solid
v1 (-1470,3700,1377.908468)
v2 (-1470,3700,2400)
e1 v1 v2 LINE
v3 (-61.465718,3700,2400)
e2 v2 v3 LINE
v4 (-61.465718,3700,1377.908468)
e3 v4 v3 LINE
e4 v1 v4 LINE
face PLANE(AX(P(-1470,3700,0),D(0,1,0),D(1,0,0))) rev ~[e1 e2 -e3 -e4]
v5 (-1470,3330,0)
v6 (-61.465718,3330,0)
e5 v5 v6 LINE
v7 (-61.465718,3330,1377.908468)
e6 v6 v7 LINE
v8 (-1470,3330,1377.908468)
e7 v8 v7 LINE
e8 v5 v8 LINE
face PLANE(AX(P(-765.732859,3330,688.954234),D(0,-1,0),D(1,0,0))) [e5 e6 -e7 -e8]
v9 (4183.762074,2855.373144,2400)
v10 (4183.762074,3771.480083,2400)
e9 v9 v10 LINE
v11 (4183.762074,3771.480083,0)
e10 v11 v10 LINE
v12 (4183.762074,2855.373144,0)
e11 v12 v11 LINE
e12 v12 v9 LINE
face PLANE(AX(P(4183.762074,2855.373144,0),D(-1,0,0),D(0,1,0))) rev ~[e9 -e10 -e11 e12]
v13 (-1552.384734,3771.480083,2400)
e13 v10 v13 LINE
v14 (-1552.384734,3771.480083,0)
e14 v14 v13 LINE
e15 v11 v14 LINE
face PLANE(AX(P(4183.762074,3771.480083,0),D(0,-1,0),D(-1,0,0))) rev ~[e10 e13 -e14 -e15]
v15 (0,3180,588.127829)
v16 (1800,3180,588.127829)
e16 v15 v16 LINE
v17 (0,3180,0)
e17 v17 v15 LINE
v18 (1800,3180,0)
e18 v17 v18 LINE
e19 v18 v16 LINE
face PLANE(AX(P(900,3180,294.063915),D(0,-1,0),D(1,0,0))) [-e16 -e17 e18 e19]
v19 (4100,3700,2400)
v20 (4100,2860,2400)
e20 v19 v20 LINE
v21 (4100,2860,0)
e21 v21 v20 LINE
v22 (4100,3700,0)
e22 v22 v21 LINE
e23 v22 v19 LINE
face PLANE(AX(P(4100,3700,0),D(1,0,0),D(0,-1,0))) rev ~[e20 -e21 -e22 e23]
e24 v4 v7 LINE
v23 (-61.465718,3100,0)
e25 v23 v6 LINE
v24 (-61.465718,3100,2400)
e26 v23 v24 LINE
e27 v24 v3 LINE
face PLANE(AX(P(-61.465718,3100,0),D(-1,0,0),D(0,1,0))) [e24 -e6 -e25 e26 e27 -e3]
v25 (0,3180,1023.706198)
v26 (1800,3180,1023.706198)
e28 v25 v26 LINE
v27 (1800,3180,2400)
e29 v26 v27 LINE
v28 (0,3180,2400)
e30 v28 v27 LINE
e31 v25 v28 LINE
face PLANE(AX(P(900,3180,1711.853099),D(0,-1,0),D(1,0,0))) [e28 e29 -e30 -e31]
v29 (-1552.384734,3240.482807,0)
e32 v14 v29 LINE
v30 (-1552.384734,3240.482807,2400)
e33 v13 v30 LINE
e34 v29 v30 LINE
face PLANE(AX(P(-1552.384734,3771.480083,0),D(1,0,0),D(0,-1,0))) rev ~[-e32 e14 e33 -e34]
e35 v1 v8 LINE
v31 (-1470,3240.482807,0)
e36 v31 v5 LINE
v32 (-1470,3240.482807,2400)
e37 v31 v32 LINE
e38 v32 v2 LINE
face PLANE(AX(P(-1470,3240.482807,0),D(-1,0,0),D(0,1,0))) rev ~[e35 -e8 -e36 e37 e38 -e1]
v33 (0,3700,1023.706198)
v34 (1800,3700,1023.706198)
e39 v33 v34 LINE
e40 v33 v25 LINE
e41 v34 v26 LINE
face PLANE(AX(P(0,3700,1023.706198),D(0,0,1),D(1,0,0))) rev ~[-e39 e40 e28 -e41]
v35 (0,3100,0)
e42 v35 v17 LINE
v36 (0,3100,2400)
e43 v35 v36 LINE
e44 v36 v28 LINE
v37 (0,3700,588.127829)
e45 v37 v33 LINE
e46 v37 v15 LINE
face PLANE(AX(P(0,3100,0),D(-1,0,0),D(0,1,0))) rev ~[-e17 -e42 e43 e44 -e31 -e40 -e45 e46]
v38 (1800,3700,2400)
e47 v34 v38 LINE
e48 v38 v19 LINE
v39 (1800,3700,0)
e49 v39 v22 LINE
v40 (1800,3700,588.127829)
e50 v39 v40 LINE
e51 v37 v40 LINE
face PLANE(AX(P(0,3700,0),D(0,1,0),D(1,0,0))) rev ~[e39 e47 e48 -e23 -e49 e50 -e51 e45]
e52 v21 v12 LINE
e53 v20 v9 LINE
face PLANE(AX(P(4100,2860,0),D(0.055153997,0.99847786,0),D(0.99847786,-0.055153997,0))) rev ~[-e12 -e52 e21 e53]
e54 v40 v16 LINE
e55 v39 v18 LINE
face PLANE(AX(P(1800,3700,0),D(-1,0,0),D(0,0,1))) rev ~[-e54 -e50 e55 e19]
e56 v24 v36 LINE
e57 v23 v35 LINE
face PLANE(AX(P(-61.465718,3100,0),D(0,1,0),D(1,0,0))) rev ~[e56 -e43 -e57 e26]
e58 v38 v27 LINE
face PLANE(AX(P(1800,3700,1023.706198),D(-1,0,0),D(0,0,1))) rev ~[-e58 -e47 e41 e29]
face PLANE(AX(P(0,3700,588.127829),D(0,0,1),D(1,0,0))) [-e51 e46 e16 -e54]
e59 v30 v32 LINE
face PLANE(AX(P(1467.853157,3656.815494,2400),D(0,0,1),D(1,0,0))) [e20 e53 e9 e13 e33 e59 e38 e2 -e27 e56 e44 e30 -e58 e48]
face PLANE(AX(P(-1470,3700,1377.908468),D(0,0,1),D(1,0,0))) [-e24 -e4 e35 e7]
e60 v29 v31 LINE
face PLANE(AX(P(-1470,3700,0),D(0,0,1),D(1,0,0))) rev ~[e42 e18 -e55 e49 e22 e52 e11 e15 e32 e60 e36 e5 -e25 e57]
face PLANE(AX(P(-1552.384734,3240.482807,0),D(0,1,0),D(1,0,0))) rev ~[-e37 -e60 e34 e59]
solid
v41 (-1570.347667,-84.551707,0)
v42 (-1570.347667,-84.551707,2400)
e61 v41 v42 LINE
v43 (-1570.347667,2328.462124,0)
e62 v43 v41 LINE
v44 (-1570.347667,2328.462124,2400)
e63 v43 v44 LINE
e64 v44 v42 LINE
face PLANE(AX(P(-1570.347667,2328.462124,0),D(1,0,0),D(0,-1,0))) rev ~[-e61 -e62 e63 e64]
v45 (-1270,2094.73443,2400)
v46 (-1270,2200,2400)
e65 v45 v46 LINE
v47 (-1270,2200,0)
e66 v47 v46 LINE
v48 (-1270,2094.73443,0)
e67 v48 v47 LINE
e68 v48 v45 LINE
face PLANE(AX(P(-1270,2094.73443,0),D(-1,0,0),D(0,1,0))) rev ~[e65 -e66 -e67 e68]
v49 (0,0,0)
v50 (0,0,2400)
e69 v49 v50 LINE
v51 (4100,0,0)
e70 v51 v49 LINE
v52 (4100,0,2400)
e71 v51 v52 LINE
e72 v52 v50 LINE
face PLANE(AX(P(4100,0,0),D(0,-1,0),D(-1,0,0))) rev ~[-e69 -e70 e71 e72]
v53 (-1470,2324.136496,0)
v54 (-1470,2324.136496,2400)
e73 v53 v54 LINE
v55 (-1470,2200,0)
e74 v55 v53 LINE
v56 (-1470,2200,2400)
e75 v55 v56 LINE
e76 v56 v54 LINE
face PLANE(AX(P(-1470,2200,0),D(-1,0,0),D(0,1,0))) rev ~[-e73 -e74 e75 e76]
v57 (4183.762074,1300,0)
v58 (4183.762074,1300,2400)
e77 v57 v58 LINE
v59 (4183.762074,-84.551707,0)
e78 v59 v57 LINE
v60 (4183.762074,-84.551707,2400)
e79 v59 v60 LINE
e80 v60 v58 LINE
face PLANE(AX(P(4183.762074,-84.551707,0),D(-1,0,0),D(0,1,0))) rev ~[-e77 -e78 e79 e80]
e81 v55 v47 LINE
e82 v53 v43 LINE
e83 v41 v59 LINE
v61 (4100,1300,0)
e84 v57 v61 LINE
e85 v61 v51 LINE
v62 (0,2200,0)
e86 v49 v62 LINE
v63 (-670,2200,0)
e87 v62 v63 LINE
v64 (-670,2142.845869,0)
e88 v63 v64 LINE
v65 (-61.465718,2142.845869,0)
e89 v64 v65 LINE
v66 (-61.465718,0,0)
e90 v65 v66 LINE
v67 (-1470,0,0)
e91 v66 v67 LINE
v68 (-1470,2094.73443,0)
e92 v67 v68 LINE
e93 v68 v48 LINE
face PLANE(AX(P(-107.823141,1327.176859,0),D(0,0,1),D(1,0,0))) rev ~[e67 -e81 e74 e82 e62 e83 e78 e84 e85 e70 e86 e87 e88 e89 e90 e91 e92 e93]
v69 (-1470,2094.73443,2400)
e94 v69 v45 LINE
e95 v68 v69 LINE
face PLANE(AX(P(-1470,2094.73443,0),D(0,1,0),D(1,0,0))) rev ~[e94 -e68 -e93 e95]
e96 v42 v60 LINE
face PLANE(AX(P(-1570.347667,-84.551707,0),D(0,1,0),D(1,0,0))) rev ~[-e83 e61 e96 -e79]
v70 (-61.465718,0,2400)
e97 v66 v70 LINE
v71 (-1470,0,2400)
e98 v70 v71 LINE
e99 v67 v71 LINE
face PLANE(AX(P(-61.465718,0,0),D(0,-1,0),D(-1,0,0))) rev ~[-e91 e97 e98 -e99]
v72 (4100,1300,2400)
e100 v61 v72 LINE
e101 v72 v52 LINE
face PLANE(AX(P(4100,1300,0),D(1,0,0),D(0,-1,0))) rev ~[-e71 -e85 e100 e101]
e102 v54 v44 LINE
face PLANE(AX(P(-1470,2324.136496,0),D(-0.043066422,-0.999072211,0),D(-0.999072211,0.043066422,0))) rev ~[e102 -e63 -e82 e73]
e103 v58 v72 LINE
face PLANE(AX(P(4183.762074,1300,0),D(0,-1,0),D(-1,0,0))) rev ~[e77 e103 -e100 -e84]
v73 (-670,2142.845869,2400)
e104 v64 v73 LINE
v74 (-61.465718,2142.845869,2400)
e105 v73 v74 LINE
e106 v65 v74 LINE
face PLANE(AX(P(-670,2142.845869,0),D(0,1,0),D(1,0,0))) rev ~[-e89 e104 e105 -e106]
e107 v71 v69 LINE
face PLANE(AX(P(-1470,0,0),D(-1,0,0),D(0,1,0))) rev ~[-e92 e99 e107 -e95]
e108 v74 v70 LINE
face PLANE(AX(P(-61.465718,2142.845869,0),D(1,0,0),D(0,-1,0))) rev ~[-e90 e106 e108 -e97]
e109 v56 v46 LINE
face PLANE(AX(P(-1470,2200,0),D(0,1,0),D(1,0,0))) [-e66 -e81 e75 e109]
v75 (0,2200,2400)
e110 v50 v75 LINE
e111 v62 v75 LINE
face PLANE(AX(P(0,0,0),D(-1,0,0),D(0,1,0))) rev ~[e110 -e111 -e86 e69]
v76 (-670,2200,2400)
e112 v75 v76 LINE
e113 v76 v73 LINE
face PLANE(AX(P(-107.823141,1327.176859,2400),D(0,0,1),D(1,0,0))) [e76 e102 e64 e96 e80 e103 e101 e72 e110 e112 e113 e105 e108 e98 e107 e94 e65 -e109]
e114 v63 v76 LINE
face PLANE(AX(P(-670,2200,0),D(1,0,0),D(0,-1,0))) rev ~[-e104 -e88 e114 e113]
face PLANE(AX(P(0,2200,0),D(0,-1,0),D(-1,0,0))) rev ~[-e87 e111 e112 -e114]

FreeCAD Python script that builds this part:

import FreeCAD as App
import Part
import Sketcher
from FreeCAD import Vector
Q = App.Units.Quantity


def add_polygon(sketch, points):
    """Adds a closed chain of lines whose ends are joined by coincident constraints."""
    first, n = sketch.GeometryCount, len(points)
    for a, b in zip(points, points[1:] + points[:1]):
        sketch.addGeometry(Part.LineSegment(App.Vector(*a, 0), App.Vector(*b, 0)), False)
    for i in range(n):
        sketch.addConstraint(Sketcher.Constraint("Coincident", first + i, 2, first + (i + 1) % n, 1))

doc = App.newDocument("Part")
body = doc.addObject("PartDesign::Body", "Body")

# Sketch on XY plane
sketch1 = doc.addObject("Sketcher::SketchObject", "Sketch")
body.addObject(sketch1)
sketch1.AttachmentSupport = (doc.XY_Plane, [""])
sketch1.MapMode = "FlatFace"
add_polygon(sketch1, [(0, 0), (0, 2200), (-670, 2200), (-670, 2142.845869), (-61.465718, 2142.845869), (-61.465718, 0), (-1470, 0), (-1470, 2094.73443), (-1270, 2094.73443), (-1270, 2200), (-1470, 2200), (-1470, 2324.136496), (-1570.347667, 2328.462124), (-1570.347667, -84.551707), (4183.762074, -84.551707), (4183.762074, 1300), (4100, 1300), (4100, 0)])  # lines 0-17
sketch1.addConstraint([
    Sketcher.Constraint("Vertical", 0),
    Sketcher.Constraint("Horizontal", 1),
    Sketcher.Constraint("Vertical", 2),
    Sketcher.Constraint("Horizontal", 3),
    Sketcher.Constraint("Vertical", 4),
    Sketcher.Constraint("Horizontal", 5),
    Sketcher.Constraint("Vertical", 6),
    Sketcher.Constraint("Horizontal", 7),
    Sketcher.Constraint("Vertical", 8),
    Sketcher.Constraint("Horizontal", 9),
    Sketcher.Constraint("Vertical", 10),
    Sketcher.Constraint("Vertical", 12),
    Sketcher.Constraint("Horizontal", 13),
    Sketcher.Constraint("Vertical", 14),
    Sketcher.Constraint("Horizontal", 15),
    Sketcher.Constraint("Vertical", 16),
    Sketcher.Constraint("Horizontal", 17),
    Sketcher.Constraint("Coincident", 17, 2, -1, 1),
    Sketcher.Constraint("PointOnObject", 4, 2, -1),
    Sketcher.Constraint("Horizontal", 1, 2, 8, 2),
    Sketcher.Constraint("Vertical", 6, 2, 9, 2),
    Sketcher.Constraint("DistanceX", 1, 2, 1, 1, Q("670 mm")),
    Sketcher.Constraint("DistanceX", 7, 1, 7, 2, Q("200 mm")),
    Sketcher.Constraint("DistanceX", 17, 2, 17, 1, Q("4100 mm")),
    Sketcher.Constraint("DistanceY", 0, 1, 0, 2, Q("2200 mm")),
    Sketcher.Constraint("DistanceY", 16, 2, 16, 1, Q("1300 mm")),
    Sketcher.Constraint("DistanceX", 5, 2, -1, 1, Q("1470 mm")),
    Sketcher.Constraint("DistanceX", 13, 1, 13, 2, Q("5754.10974 mm")),
    Sketcher.Constraint("DistanceY", 2, 2, 2, 1, Q("57.154131 mm")),
    Sketcher.Constraint("DistanceY", 6, 1, 6, 2, Q("2094.73443 mm")),
    Sketcher.Constraint("DistanceY", 12, 2, 12, 1, Q("2413.013831 mm")),
    Sketcher.Constraint("DistanceX", 3, 1, 3, 2, Q("608.534282 mm")),
    Sketcher.Constraint("DistanceX", 15, 2, 15, 1, Q("83.762074 mm")),
    Sketcher.Constraint("DistanceY", 10, 1, 10, 2, Q("124.136496 mm")),
    Sketcher.Constraint("DistanceY", 14, 1, 14, 2, Q("1384.551707 mm")),
])
pad1 = doc.addObject("PartDesign::Pad", "Pad")
body.addObject(pad1)
pad1.Profile = sketch1
pad1.Length = 2400
body2 = doc.addObject("PartDesign::Body", "Body001")

# Sketch on XY plane
sketch2 = doc.addObject("Sketcher::SketchObject", "Sketch001")
body2.addObject(sketch2)
sketch2.AttachmentSupport = (doc.getObject("XY_Plane001"), [""])
sketch2.MapMode = "FlatFace"
add_polygon(sketch2, [(4100, 3700), (4100, 2860), (4183.762074, 2855.373144), (4183.762074, 3771.480083), (-1552.384734, 3771.480083), (-1552.384734, 3240.482807), (-1470, 3240.482807), (-1470, 3700), (-61.465718, 3700), (-61.465718, 3100), (0, 3100), (0, 3700)])  # lines 0-11
sketch2.addConstraint([
    Sketcher.Constraint("Vertical", 0),
    Sketcher.Constraint("Vertical", 2),
    Sketcher.Constraint("Horizontal", 3),
    Sketcher.Constraint("Vertical", 4),
    Sketcher.Constraint("Horizontal", 5),
    Sketcher.Constraint("Vertical", 6),
    Sketcher.Constraint("Horizontal", 7),
    Sketcher.Constraint("Vertical", 8),
    Sketcher.Constraint("Horizontal", 9),
    Sketcher.Constraint("Vertical", 10),
    Sketcher.Constraint("Horizontal", 11),
    Sketcher.Constraint("PointOnObject", 9, 2, -2),
    Sketcher.Constraint("Horizontal", 7, 2, 10, 2),
    Sketcher.Constraint("DistanceX", 11, 1, 11, 2, Q("4100 mm")),
    Sketcher.Constraint("DistanceY", 0, 2, 0, 1, Q("840 mm")),
    Sketcher.Constraint("DistanceY", 8, 2, 8, 1, Q("600 mm")),
    Sketcher.Constraint("DistanceY", -1, 1, 0, 2, Q("2860 mm")),
    Sketcher.Constraint("DistanceX", 5, 2, -1, 1, Q("1470 mm")),
    Sketcher.Constraint("DistanceY", 2, 1, 2, 2, Q("916.106939 mm")),
    Sketcher.Constraint("DistanceX", 3, 2, 3, 1, Q("5736.146808 mm")),
    Sketcher.Constraint("DistanceX", 5, 1, 5, 2, Q("82.384734 mm")),
    Sketcher.Constraint("DistanceX", 7, 1, 7, 2, Q("1408.534282 mm")),
    Sketcher.Constraint("DistanceY", 4, 2, 4, 1, Q("530.997276 mm")),
    Sketcher.Constraint("DistanceY", 6, 1, 6, 2, Q("459.517193 mm")),
])
pad2 = doc.addObject("PartDesign::Pad", "Pad001")
body2.addObject(pad2)
pad2.Profile = sketch2
pad2.Length = 2400

# Sketch on XZ plane
sketch3 = doc.addObject("Sketcher::SketchObject", "Sketch002")
body2.addObject(sketch3)
sketch3.AttachmentSupport = (doc.getObject("XZ_Plane001"), [""])
sketch3.MapMode = "FlatFace"
sketch3.AttachmentOffset = App.Placement(Vector(0, 0, -3700), App.Rotation())
add_polygon(sketch3, [(0, 588.127829), (0, 0), (1800, 0), (1800, 588.127829)])  # lines 0-3
add_polygon(sketch3, [(0, 2400), (0, 1023.706198), (1800, 1023.706198), (1800, 2400)])  # lines 4-7
sketch3.addConstraint([
    Sketcher.Constraint("Vertical", 0),
    Sketcher.Constraint("Horizontal", 1),
    Sketcher.Constraint("Vertical", 2),
    Sketcher.Constraint("Horizontal", 3),
    Sketcher.Constraint("Vertical", 4),
    Sketcher.Constraint("Horizontal", 5),
    Sketcher.Constraint("Vertical", 6),
    Sketcher.Constraint("Horizontal", 7),
    Sketcher.Constraint("Coincident", 0, 2, -1, 1),
    Sketcher.Constraint("PointOnObject", 4, 2, -2),
    Sketcher.Constraint("Vertical", 2, 2, 5, 2),
    Sketcher.Constraint("DistanceX", 1, 1, 1, 2, Q("1800 mm")),
    Sketcher.Constraint("DistanceY", -1, 1, 6, 2, Q("2400 mm")),
    Sketcher.Constraint("DistanceY", 0, 2, 0, 1, Q("588.127829 mm")),
    Sketcher.Constraint("DistanceY", 4, 2, 4, 1, Q("1376.293802 mm")),
])
pad3 = doc.addObject("PartDesign::Pad", "Pad002")
body2.addObject(pad3)
pad3.Profile = sketch3
pad3.Length = 520

# Sketch on XZ plane
sketch4 = doc.addObject("Sketcher::SketchObject", "Sketch003")
body2.addObject(sketch4)
sketch4.AttachmentSupport = (doc.getObject("XZ_Plane001"), [""])
sketch4.MapMode = "FlatFace"
sketch4.AttachmentOffset = App.Placement(Vector(0, 0, -3700), App.Rotation())
add_polygon(sketch4, [(-1470, 1377.908468), (-1470, 0), (-61.465718, 0), (-61.465718, 1377.908468)])  # lines 0-3
sketch4.addConstraint([
    Sketcher.Constraint("Vertical", 0),
    Sketcher.Constraint("Horizontal", 1),
    Sketcher.Constraint("Vertical", 2),
    Sketcher.Constraint("Horizontal", 3),
    Sketcher.Constraint("PointOnObject", 0, 2, -1),
    Sketcher.Constraint("DistanceX", 0, 2, -1, 1, Q("1470 mm")),
    Sketcher.Constraint("DistanceY", 0, 2, 0, 1, Q("1377.908468 mm")),
    Sketcher.Constraint("DistanceX", 1, 1, 1, 2, Q("1408.534282 mm")),
])
pad4 = doc.addObject("PartDesign::Pad", "Pad003")
body2.addObject(pad4)
pad4.Profile = sketch4
pad4.Length = 370

doc.recompute()
